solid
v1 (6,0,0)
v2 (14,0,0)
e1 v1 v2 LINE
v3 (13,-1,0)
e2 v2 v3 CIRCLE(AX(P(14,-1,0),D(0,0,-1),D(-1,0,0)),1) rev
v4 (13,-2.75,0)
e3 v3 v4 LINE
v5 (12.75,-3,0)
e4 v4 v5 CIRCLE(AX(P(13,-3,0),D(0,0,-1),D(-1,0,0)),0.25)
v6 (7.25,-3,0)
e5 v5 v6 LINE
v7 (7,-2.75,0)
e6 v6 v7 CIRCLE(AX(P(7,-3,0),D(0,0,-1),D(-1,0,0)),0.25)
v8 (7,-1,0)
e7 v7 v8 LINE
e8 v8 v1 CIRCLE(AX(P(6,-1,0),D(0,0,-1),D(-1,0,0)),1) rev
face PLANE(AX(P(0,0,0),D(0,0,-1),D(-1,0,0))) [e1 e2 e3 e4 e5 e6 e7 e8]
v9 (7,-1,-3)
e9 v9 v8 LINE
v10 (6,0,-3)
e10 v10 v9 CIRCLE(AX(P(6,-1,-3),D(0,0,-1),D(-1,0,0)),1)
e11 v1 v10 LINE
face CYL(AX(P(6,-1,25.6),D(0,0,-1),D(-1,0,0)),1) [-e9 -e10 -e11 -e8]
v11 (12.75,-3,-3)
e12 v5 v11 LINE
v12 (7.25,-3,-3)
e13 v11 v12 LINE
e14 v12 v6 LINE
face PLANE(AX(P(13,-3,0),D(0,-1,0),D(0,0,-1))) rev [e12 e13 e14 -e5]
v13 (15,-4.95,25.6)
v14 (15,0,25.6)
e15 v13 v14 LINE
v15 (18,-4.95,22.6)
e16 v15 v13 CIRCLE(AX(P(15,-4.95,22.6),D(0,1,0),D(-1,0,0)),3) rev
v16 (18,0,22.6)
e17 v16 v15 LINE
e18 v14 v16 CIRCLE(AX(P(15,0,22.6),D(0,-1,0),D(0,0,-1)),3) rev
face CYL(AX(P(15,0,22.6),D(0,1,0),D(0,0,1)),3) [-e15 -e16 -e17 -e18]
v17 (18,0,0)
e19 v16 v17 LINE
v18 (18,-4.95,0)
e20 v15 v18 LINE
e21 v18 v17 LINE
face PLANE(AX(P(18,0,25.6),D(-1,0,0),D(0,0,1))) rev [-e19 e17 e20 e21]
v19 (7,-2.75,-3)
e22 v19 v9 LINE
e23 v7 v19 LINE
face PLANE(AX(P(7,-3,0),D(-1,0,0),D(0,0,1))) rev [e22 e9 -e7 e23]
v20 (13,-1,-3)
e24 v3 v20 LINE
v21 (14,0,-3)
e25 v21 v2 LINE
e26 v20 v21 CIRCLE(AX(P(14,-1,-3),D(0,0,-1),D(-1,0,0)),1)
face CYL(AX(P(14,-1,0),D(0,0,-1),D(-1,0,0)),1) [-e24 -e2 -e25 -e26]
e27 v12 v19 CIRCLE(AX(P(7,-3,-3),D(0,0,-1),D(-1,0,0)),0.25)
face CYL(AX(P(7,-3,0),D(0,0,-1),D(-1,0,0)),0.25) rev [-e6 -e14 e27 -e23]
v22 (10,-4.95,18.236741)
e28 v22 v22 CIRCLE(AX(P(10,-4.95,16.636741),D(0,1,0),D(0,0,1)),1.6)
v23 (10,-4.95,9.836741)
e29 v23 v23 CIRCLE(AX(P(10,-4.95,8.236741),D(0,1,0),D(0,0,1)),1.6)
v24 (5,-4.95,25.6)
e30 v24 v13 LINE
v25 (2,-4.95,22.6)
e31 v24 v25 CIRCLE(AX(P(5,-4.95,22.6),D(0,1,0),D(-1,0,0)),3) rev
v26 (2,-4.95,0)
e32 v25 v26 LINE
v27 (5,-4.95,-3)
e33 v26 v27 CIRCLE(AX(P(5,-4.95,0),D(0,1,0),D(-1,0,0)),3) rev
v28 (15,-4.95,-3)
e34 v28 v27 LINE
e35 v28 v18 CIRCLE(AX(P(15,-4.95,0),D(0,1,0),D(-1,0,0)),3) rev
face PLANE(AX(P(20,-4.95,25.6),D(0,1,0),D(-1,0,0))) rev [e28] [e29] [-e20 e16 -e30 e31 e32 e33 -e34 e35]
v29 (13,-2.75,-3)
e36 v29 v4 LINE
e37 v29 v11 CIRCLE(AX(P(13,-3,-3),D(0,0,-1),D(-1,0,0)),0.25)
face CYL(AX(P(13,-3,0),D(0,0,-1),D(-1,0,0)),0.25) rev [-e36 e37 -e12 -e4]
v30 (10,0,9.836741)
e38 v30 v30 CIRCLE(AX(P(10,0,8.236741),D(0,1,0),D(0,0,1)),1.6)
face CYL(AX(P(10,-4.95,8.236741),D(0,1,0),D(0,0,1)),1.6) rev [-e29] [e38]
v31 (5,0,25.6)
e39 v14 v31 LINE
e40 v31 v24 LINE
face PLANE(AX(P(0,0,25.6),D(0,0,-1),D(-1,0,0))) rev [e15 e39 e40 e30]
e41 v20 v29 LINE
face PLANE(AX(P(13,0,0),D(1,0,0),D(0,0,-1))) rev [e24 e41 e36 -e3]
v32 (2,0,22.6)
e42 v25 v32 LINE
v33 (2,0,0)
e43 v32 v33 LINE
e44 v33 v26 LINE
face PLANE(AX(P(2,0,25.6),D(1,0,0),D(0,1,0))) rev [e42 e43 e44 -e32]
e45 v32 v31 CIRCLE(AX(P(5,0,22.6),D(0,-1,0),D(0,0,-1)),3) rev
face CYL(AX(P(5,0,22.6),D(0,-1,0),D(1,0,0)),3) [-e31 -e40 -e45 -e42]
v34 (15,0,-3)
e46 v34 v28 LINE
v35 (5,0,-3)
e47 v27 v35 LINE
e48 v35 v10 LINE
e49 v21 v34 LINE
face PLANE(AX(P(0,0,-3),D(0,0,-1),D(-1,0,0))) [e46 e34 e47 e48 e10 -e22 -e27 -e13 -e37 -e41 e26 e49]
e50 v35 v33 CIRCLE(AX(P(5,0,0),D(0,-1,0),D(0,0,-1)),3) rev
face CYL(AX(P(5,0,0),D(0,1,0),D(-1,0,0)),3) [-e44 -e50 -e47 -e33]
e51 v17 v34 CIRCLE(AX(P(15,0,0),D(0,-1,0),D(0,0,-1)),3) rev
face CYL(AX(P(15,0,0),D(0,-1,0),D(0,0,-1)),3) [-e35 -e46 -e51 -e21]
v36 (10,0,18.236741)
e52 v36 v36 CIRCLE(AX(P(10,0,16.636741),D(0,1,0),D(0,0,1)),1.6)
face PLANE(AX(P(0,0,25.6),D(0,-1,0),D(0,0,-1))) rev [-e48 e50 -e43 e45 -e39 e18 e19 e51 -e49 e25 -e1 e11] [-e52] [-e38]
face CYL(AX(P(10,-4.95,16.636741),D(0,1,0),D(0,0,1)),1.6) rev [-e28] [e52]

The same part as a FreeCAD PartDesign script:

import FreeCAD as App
import Part
import Sketcher
Q = App.Units.Quantity


def edges_at(feature, points):
    """Names of the edges that pass closest to the given points."""
    edges = feature.Shape.Edges
    near = lambda p: min(range(len(edges)), key=lambda i: edges[i].distToShape(Part.Vertex(*p))[0])
    return sorted({f"Edge{near(p) + 1}" for p in points})


def add_polygon(sketch, points):
    """Adds a closed chain of lines whose ends are joined by coincident constraints."""
    first, n = sketch.GeometryCount, len(points)
    for a, b in zip(points, points[1:] + points[:1]):
        sketch.addGeometry(Part.LineSegment(App.Vector(*a, 0), App.Vector(*b, 0)), False)
    for i in range(n):
        sketch.addConstraint(Sketcher.Constraint("Coincident", first + i, 2, first + (i + 1) % n, 1))

doc = App.newDocument("Part")
body = doc.addObject("PartDesign::Body", "Body")

# Sketch on XY plane
sketch1 = body.newObject("Sketcher::SketchObject", "Sketch")
sketch1.AttachmentSupport = (doc.getObject("XY_Plane"), [""])
sketch1.MapMode = "FlatFace"
add_polygon(sketch1, [(0, 0), (0, -5), (20, -5), (20, 0)])  # lines 0-3
sketch1.addConstraint(Sketcher.Constraint("Vertical", 0))
sketch1.addConstraint(Sketcher.Constraint("Horizontal", 1))
sketch1.addConstraint(Sketcher.Constraint("Vertical", 2))
sketch1.addConstraint(Sketcher.Constraint("Horizontal", 3))
sketch1.addConstraint(Sketcher.Constraint("Coincident", 3, 2, -1, 1))
sketch1.addConstraint(Sketcher.Constraint("DistanceX", 1, 1, 1, 2, Q("20 mm")))
sketch1.addConstraint(Sketcher.Constraint("DistanceY", 0, 2, 0, 1, Q("4.95 mm")))
pad1 = body.newObject("PartDesign::Pad", "Pad")
pad1.Profile = sketch1
pad1.Length = 25.6

# Sketch on XZ plane
sketch2 = body.newObject("Sketcher::SketchObject", "Sketch001")
sketch2.AttachmentSupport = (doc.getObject("XZ_Plane"), [""])
sketch2.MapMode = "FlatFace"
sketch2.addGeometry(Part.Circle(App.Vector(10, 8.2, 0), App.Vector(0, 0, 1), 1.6), False)
sketch2.addGeometry(Part.Circle(App.Vector(10, 16.6, 0), App.Vector(0, 0, 1), 1.6), False)
sketch2.addConstraint(Sketcher.Constraint("Equal", 0, 1))
sketch2.addConstraint(Sketcher.Constraint("Vertical", 0, 3, 1, 3))
sketch2.addConstraint(Sketcher.Constraint("Diameter", 0, Q("3.2 mm")))
sketch2.addConstraint(Sketcher.Constraint("DistanceX", -1, 1, 0, 3, Q("10 mm")))
sketch2.addConstraint(Sketcher.Constraint("DistanceY", 0, 3, 1, 3, Q("8.4 mm")))
sketch2.addConstraint(Sketcher.Constraint("DistanceY", -1, 1, 0, 3, Q("8.236741 mm")))
pocket1 = body.newObject("PartDesign::Pocket", "Pocket")
pocket1.Profile = sketch2
pocket1.Type = "ThroughAll"
pocket1.Reversed = True

# Sketch on XY plane
sketch3 = body.newObject("Sketcher::SketchObject", "Sketch002")
sketch3.AttachmentSupport = (doc.getObject("XY_Plane"), [""])
sketch3.MapMode = "FlatFace"
add_polygon(sketch3, [(20, 0), (20, -5), (0, -5), (0, 0)])  # lines 0-3
sketch3.addConstraint(Sketcher.Constraint("Vertical", 0))
sketch3.addConstraint(Sketcher.Constraint("Horizontal", 1))
sketch3.addConstraint(Sketcher.Constraint("Vertical", 2))
sketch3.addConstraint(Sketcher.Constraint("Horizontal", 3))
sketch3.addConstraint(Sketcher.Constraint("Coincident", 2, 2, -1, 1))
sketch3.addConstraint(Sketcher.Constraint("DistanceX", 1, 2, 1, 1, Q("20 mm")))
sketch3.addConstraint(Sketcher.Constraint("DistanceY", 0, 2, 0, 1, Q("4.95 mm")))
pad2 = body.newObject("PartDesign::Pad", "Pad001")
pad2.Profile = sketch3
pad2.Length = 3
pad2.Reversed = True

# Sketch on XY plane
sketch4 = body.newObject("Sketcher::SketchObject", "Sketch003")
sketch4.AttachmentSupport = (doc.getObject("XY_Plane"), [""])
sketch4.MapMode = "FlatFace"
sketch4.AttachmentOffset = App.Placement(App.Vector(0, 0, -3), App.Rotation())
add_polygon(sketch4, [(7, 0), (13, 0), (13, -3), (7, -3)])  # lines 0-3
sketch4.addConstraint(Sketcher.Constraint("Horizontal", 0))
sketch4.addConstraint(Sketcher.Constraint("Vertical", 1))
sketch4.addConstraint(Sketcher.Constraint("Horizontal", 2))
sketch4.addConstraint(Sketcher.Constraint("Vertical", 3))
sketch4.addConstraint(Sketcher.Constraint("PointOnObject", 0, 2, -1))
sketch4.addConstraint(Sketcher.Constraint("DistanceX", 0, 1, 0, 2, Q("6 mm")))
sketch4.addConstraint(Sketcher.Constraint("DistanceY", 1, 2, 1, 1, Q("3 mm")))
sketch4.addConstraint(Sketcher.Constraint("DistanceX", -1, 1, 0, 2, Q("13 mm")))
pocket2 = body.newObject("PartDesign::Pocket", "Pocket001")
pocket2.Profile = sketch4
pocket2.Length = 3
pocket2.Reversed = True

# Sketch on XY plane
sketch5 = body.newObject("Sketcher::SketchObject", "Sketch004")
sketch5.AttachmentSupport = (doc.getObject("XY_Plane"), [""])
sketch5.MapMode = "FlatFace"
sketch5.AttachmentOffset = App.Placement(App.Vector(0, 0, -3), App.Rotation())
sketch5.addGeometry(Part.Circle(App.Vector(7, -3, 0), App.Vector(0, 0, 1), 0.25), False)
sketch5.addGeometry(Part.Circle(App.Vector(13, -3, 0), App.Vector(0, 0, 1), 0.25), False)
sketch5.addConstraint(Sketcher.Constraint("Equal", 0, 1))
sketch5.addConstraint(Sketcher.Constraint("Horizontal", 0, 3, 1, 3))
sketch5.addConstraint(Sketcher.Constraint("Diameter", 0, Q("0.5 mm")))
sketch5.addConstraint(Sketcher.Constraint("DistanceX", -1, 1, 0, 3, Q("7 mm")))
sketch5.addConstraint(Sketcher.Constraint("DistanceY", 0, 3, -1, 1, Q("3 mm")))
sketch5.addConstraint(Sketcher.Constraint("DistanceX", -1, 1, 1, 3, Q("13 mm")))
pocket3 = body.newObject("PartDesign::Pocket", "Pocket002")
pocket3.Profile = sketch5
pocket3.Length = 3
pocket3.Reversed = True
doc.recompute()

fillet = body.newObject("PartDesign::Fillet", "Fillet")
fillet.Base = (pocket3, edges_at(pocket3, [(13, 0, -1.5), (7, 0, -1.5)]))
fillet.Radius = 1

# Sketch on XY plane
sketch6 = body.newObject("Sketcher::SketchObject", "Sketch005")
sketch6.AttachmentSupport = (doc.getObject("XY_Plane"), [""])
sketch6.MapMode = "FlatFace"
sketch6.AttachmentOffset = App.Placement(App.Vector(0, 0, -3), App.Rotation())
add_polygon(sketch6, [(2, 0), (2, -5), (0, -5), (0, 0)])  # lines 0-3
add_polygon(sketch6, [(20, 0), (20, -5), (18, -5), (18, 0)])  # lines 4-7
sketch6.addConstraint(Sketcher.Constraint("Vertical", 0))
sketch6.addConstraint(Sketcher.Constraint("Horizontal", 1))
sketch6.addConstraint(Sketcher.Constraint("Vertical", 2))
sketch6.addConstraint(Sketcher.Constraint("Horizontal", 3))
sketch6.addConstraint(Sketcher.Constraint("Vertical", 4))
sketch6.addConstraint(Sketcher.Constraint("Horizontal", 5))
sketch6.addConstraint(Sketcher.Constraint("Vertical", 6))
sketch6.addConstraint(Sketcher.Constraint("Horizontal", 7))
sketch6.addConstraint(Sketcher.Constraint("Coincident", 2, 2, -1, 1))
sketch6.addConstraint(Sketcher.Constraint("PointOnObject", 6, 2, -1))
sketch6.addConstraint(Sketcher.Constraint("Horizontal", 1, 2, 4, 2))
sketch6.addConstraint(Sketcher.Constraint("Equal", 3, 5))
sketch6.addConstraint(Sketcher.Constraint("DistanceX", 1, 2, 1, 1, Q("2 mm")))
sketch6.addConstraint(Sketcher.Constraint("DistanceX", -1, 1, 4, 2, Q("20 mm")))
sketch6.addConstraint(Sketcher.Constraint("DistanceY", 0, 2, 0, 1, Q("4.95 mm")))
pocket4 = body.newObject("PartDesign::Pocket", "Pocket003")
pocket4.Profile = sketch6
pocket4.Type = "ThroughAll"
pocket4.Reversed = True
doc.recompute()

fillet2 = body.newObject("PartDesign::Fillet", "Fillet001")
fillet2.Base = (pocket4, edges_at(pocket4, [
    (2, -2.475, 25.6),
    (2, -2.475, -3),
    (18, -2.475, 25.6),
    (18, -2.475, -3),
]))
fillet2.Radius = 3

doc.recompute()
